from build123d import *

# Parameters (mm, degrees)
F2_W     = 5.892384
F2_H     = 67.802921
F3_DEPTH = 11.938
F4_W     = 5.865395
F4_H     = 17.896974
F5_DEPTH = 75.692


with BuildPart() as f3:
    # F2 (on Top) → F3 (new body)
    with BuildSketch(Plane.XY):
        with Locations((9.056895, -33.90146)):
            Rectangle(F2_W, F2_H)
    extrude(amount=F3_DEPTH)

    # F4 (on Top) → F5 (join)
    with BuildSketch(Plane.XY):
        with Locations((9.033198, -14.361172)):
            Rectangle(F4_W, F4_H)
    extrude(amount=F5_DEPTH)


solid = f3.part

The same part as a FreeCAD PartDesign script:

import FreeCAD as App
import Part
import Sketcher
Q = App.Units.Quantity

doc = App.newDocument("Part")
body = doc.addObject("PartDesign::Body", "Body")

sketch1 = body.newObject("Sketcher::SketchObject", "Sketch")
sketch1.AttachmentSupport = (doc.getObject("XY_Plane"), [""])
sketch1.MapMode = "FlatFace"
sketch1.addGeometry([
    Part.LineSegment(App.Vector(6, 0, 0), App.Vector(6, -68, 0)),
    Part.LineSegment(App.Vector(6, -68, 0), App.Vector(12, -68, 0)),
    Part.LineSegment(App.Vector(12, -68, 0), App.Vector(12, 0, 0)),
    Part.LineSegment(App.Vector(12, 0, 0), App.Vector(6, 0, 0)),
], False)
sketch1.addConstraint([
    Sketcher.Constraint("Coincident", 0, 2, 1, 1),
    Sketcher.Constraint("Coincident", 1, 2, 2, 1),
    Sketcher.Constraint("Coincident", 2, 2, 3, 1),
    Sketcher.Constraint("Coincident", 3, 2, 0, 1),
    Sketcher.Constraint("Vertical", 0),
    Sketcher.Constraint("Horizontal", 1),
    Sketcher.Constraint("Vertical", 2),
    Sketcher.Constraint("Horizontal", 3),
    Sketcher.Constraint("PointOnObject", 2, 2, -1),
    Sketcher.Constraint("DistanceY", 0, 2, 0, 1, 67.802921),
    Sketcher.Constraint("DistanceX", 1, 1, 1, 2, 5.892384),
    Sketcher.Constraint("DistanceX", -1, 1, 0, 2, 6.110703),
])
pad1 = body.newObject("PartDesign::Pad", "Pad")
pad1.Profile = sketch1
pad1.Length = Q("0.47 in")

sketch2 = body.newObject("Sketcher::SketchObject", "Sketch001")
sketch2.AttachmentSupport = (doc.getObject("XY_Plane"), [""])
sketch2.MapMode = "FlatFace"
sketch2.addGeometry([
    Part.LineSegment(App.Vector(6, -5, 0), App.Vector(6, -23, 0)),
    Part.LineSegment(App.Vector(6, -23, 0), App.Vector(12, -23, 0)),
    Part.LineSegment(App.Vector(12, -23, 0), App.Vector(12, -5, 0)),
    Part.LineSegment(App.Vector(12, -5, 0), App.Vector(6, -5, 0)),
], False)
sketch2.addConstraint([
    Sketcher.Constraint("Coincident", 0, 2, 1, 1),
    Sketcher.Constraint("Coincident", 1, 2, 2, 1),
    Sketcher.Constraint("Coincident", 2, 2, 3, 1),
    Sketcher.Constraint("Coincident", 3, 2, 0, 1),
    Sketcher.Constraint("Vertical", 0),
    Sketcher.Constraint("Horizontal", 1),
    Sketcher.Constraint("Vertical", 2),
    Sketcher.Constraint("Horizontal", 3),
    Sketcher.Constraint("DistanceX", -1, 1, 0, 2, 6.1005),
    Sketcher.Constraint("DistanceX", 1, 1, 1, 2, 5.865395),
    Sketcher.Constraint("DistanceY", 0, 2, 0, 1, 17.896974),
    Sketcher.Constraint("DistanceY", 0, 2, -1, 1, 23.309659),
])
pad2 = body.newObject("PartDesign::Pad", "Pad001")
pad2.Profile = sketch2
pad2.Length = Q("2.98 in")

doc.recompute()
